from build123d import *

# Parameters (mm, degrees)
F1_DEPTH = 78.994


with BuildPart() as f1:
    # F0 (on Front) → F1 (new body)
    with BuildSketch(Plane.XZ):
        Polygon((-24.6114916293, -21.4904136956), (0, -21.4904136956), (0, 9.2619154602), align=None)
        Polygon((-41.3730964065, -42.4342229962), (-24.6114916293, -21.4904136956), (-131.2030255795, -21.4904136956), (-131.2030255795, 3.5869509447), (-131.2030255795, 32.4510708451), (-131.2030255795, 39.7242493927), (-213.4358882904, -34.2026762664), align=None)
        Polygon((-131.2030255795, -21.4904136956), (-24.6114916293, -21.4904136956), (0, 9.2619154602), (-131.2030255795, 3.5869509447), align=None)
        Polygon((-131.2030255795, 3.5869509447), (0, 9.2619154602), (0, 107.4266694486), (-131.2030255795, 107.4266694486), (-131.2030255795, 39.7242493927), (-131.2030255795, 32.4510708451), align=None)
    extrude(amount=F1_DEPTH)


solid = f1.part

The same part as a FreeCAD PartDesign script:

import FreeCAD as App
import Part
import Sketcher

V = App.Vector

doc = App.newDocument("Part")
params = doc.addObject("Spreadsheet::Sheet", "Params")
for row, (alias, value) in enumerate([
    ("pad1_length", "3.11 in"),
], start=1):
    params.set(f"A{row}", alias)
    params.set(f"B{row}", "=" + value)
    params.setAlias(f"B{row}", alias)

body = doc.addObject("PartDesign::Body", "Body")

sketch1 = body.newObject("Sketcher::SketchObject", "Sketch")
sketch1.AttachmentSupport = (doc.getObject("XZ_Plane"), [""])
sketch1.MapMode = "FlatFace"
sketch1.addGeometry(Part.LineSegment(V(-25, -21, 0), V(0, -21, 0)), False)
sketch1.addGeometry(Part.LineSegment(V(0, -21, 0), V(0, 107, 0)), False)
sketch1.addGeometry(Part.LineSegment(V(0, 107, 0), V(-131, 107, 0)), False)
sketch1.addGeometry(Part.LineSegment(V(-131, 107, 0), V(-131, 40, 0)), False)
sketch1.addGeometry(Part.LineSegment(V(-131, 40, 0), V(-213, -34, 0)), False)
sketch1.addGeometry(Part.LineSegment(V(-213, -34, 0), V(-41, -42, 0)), False)
sketch1.addGeometry(Part.LineSegment(V(-41, -42, 0), V(-25, -21, 0)), False)
sketch1.addConstraint(Sketcher.Constraint("Coincident", 0, 2, 1, 1))
sketch1.addConstraint(Sketcher.Constraint("Coincident", 1, 2, 2, 1))
sketch1.addConstraint(Sketcher.Constraint("Coincident", 2, 2, 3, 1))
sketch1.addConstraint(Sketcher.Constraint("Coincident", 3, 2, 4, 1))
sketch1.addConstraint(Sketcher.Constraint("Coincident", 4, 2, 5, 1))
sketch1.addConstraint(Sketcher.Constraint("Coincident", 5, 2, 6, 1))
sketch1.addConstraint(Sketcher.Constraint("Coincident", 6, 2, 0, 1))
sketch1.addConstraint(Sketcher.Constraint("Horizontal", 0))
sketch1.addConstraint(Sketcher.Constraint("Vertical", 1))
sketch1.addConstraint(Sketcher.Constraint("Horizontal", 2))
sketch1.addConstraint(Sketcher.Constraint("Vertical", 3))
sketch1.addConstraint(Sketcher.Constraint("PointOnObject", 0, 2, -2))
sketch1.addConstraint(Sketcher.Constraint("DistanceX", 0, 1, 0, 2, 24.611492))
sketch1.addConstraint(Sketcher.Constraint("DistanceY", 3, 2, 3, 1, 67.70242))
sketch1.addConstraint(Sketcher.Constraint("Distance", 4, 110.577729))
sketch1.addConstraint(Sketcher.Constraint("Distance", 5, 172.259579))
sketch1.addConstraint(Sketcher.Constraint("Distance", 6, 26.825259))
sketch1.addConstraint(Sketcher.Constraint("DistanceX", 2, 2, 2, 1, 131.203026))
sketch1.addConstraint(Sketcher.Constraint("DistanceY", 1, 1, 1, 2, 128.917083))
sketch1.addConstraint(Sketcher.Constraint("DistanceY", -1, 1, 1, 2, 107.426669))
sketch1.addConstraint(Sketcher.Constraint("DistanceX", 4, 2, -1, 1, 213.435888))
pad1 = body.newObject("PartDesign::Pad", "Pad")
pad1.Profile = sketch1
pad1.setExpression("Length", "Params.pad1_length")

doc.recompute()
